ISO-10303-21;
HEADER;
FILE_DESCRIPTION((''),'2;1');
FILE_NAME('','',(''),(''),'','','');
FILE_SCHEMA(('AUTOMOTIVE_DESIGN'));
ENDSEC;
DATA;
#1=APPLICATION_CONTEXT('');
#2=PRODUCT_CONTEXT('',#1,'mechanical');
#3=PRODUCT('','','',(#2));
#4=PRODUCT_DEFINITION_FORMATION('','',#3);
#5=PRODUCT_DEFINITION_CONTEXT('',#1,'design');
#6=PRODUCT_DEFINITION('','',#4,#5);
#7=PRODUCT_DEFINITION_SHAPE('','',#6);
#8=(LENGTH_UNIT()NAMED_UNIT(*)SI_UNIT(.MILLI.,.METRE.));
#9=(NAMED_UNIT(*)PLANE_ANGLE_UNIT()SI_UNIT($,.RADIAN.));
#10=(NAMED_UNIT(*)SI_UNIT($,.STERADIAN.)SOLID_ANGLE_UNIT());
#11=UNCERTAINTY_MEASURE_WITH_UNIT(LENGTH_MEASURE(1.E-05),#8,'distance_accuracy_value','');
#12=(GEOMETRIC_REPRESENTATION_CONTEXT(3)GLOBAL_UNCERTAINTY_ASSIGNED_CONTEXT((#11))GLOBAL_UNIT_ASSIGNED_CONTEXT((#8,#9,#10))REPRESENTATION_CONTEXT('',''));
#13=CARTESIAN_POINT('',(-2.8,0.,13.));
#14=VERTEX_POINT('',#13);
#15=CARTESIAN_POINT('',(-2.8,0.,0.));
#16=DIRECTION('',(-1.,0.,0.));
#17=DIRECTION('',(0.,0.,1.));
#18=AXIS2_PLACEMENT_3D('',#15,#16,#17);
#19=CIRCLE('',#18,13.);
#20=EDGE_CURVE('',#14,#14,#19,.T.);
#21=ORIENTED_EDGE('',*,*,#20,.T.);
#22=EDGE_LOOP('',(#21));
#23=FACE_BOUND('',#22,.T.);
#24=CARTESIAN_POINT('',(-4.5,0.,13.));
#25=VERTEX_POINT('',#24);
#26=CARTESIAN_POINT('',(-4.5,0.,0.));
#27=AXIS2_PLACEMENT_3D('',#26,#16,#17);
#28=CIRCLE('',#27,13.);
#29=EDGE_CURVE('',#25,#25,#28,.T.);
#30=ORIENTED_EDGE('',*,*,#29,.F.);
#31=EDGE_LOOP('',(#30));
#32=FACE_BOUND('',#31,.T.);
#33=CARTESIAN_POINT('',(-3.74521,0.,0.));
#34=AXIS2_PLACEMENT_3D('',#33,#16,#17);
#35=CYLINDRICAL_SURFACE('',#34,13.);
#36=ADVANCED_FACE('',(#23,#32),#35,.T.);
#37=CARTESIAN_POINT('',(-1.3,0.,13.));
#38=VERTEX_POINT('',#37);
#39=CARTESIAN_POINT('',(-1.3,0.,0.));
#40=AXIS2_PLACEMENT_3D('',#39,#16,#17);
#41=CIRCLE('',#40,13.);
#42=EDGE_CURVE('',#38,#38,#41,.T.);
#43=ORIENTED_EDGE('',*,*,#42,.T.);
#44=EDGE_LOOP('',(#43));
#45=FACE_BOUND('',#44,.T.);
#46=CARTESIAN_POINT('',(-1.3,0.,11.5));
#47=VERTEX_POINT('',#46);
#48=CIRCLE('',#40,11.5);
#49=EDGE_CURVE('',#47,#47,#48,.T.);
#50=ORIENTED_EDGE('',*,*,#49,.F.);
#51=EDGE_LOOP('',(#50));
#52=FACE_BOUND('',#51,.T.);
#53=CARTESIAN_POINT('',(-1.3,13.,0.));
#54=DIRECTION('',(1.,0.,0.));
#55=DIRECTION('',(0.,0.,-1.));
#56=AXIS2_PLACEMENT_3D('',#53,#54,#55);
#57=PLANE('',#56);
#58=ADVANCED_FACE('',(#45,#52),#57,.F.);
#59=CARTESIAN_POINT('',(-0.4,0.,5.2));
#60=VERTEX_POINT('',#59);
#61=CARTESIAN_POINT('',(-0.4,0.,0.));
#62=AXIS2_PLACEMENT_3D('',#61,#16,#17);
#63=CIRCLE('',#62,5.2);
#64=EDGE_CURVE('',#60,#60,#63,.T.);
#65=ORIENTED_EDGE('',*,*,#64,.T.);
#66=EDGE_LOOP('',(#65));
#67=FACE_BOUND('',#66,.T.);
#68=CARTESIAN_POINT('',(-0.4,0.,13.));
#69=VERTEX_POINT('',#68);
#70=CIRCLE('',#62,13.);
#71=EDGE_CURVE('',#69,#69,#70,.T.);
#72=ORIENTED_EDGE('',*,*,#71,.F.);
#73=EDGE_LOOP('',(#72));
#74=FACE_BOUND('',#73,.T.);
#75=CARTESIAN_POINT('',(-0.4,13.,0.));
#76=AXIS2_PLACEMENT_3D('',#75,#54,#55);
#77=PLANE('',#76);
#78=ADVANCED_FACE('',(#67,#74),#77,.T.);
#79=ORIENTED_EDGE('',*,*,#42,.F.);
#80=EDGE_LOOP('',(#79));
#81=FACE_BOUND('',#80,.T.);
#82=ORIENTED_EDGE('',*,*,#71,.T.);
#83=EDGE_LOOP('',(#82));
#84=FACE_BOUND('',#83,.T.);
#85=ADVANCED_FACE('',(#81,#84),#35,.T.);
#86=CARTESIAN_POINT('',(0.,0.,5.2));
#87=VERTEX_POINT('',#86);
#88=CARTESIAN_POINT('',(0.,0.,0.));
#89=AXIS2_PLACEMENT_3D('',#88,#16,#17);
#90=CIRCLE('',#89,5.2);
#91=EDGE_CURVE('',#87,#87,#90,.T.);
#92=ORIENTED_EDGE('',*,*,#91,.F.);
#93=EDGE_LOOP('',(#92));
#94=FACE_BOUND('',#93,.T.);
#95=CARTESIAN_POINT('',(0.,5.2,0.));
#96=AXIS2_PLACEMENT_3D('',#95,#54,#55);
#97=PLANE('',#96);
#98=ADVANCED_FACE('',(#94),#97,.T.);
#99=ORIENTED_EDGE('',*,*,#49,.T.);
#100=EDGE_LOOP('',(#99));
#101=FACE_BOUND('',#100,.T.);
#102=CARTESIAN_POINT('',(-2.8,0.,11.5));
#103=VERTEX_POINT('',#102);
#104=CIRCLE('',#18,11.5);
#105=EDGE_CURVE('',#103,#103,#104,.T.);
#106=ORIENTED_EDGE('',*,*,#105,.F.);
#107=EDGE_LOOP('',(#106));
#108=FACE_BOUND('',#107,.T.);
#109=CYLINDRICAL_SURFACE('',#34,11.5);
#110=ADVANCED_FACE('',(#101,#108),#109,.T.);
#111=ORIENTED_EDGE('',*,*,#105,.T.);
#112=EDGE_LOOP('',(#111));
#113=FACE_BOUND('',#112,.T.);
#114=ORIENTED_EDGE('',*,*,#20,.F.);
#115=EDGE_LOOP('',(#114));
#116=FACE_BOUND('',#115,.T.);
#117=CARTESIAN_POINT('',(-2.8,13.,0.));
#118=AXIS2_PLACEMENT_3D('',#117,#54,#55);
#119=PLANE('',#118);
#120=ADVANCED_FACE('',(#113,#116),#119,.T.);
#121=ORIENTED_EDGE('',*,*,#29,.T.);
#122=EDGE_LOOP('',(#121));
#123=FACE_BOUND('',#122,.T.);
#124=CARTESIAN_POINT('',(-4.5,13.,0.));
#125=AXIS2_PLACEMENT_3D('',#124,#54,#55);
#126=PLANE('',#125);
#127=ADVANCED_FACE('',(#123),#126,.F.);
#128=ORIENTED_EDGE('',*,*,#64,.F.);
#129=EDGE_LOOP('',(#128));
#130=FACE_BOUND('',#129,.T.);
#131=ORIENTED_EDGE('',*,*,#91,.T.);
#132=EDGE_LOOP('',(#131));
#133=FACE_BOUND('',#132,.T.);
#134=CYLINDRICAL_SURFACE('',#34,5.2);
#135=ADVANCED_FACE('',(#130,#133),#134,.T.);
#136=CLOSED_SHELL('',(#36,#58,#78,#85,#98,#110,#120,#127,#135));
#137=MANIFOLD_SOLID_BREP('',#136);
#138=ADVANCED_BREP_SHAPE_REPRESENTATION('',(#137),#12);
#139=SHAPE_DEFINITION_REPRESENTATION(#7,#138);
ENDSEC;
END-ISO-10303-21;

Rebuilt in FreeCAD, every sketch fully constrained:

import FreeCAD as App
import Part
import Sketcher

V = App.Vector

doc = App.newDocument("Part")
body = doc.addObject("PartDesign::Body", "Body")

# Sketch on XY plane
sketch1 = doc.addObject("Sketcher::SketchObject", "Sketch")
body.addObject(sketch1)
sketch1.AttachmentSupport = (doc.XY_Plane, [""])
sketch1.MapMode = "FlatFace"
sketch1.addGeometry(Part.LineSegment(V(-0.4, 13, 0), V(-1.3, 13, 0)), False)
sketch1.addGeometry(Part.LineSegment(V(-1.3, 13, 0), V(-1.3, 11.5, 0)), False)
sketch1.addGeometry(Part.LineSegment(V(-1.3, 11.5, 0), V(-2.8, 11.5, 0)), False)
sketch1.addGeometry(Part.LineSegment(V(-2.8, 11.5, 0), V(-2.8, 13, 0)), False)
sketch1.addGeometry(Part.LineSegment(V(-2.8, 13, 0), V(-4.5, 13, 0)), False)
sketch1.addGeometry(Part.LineSegment(V(-4.5, 13, 0), V(-4.5, 0, 0)), False)
sketch1.addGeometry(Part.LineSegment(V(-4.5, 0, 0), V(0, 0, 0)), False)
sketch1.addGeometry(Part.LineSegment(V(0, 0, 0), V(0, 5.2, 0)), False)
sketch1.addGeometry(Part.LineSegment(V(0, 5.2, 0), V(-0.4, 5.2, 0)), False)
sketch1.addGeometry(Part.LineSegment(V(-0.4, 5.2, 0), V(-0.4, 13, 0)), False)
sketch1.addConstraint(Sketcher.Constraint("Coincident", 0, 2, 1, 1))
sketch1.addConstraint(Sketcher.Constraint("Coincident", 1, 2, 2, 1))
sketch1.addConstraint(Sketcher.Constraint("Coincident", 2, 2, 3, 1))
sketch1.addConstraint(Sketcher.Constraint("Coincident", 3, 2, 4, 1))
sketch1.addConstraint(Sketcher.Constraint("Coincident", 4, 2, 5, 1))
sketch1.addConstraint(Sketcher.Constraint("Coincident", 5, 2, 6, 1))
sketch1.addConstraint(Sketcher.Constraint("Coincident", 6, 2, 7, 1))
sketch1.addConstraint(Sketcher.Constraint("Coincident", 7, 2, 8, 1))
sketch1.addConstraint(Sketcher.Constraint("Coincident", 8, 2, 9, 1))
sketch1.addConstraint(Sketcher.Constraint("Coincident", 9, 2, 0, 1))
sketch1.addConstraint(Sketcher.Constraint("Horizontal", 0))
sketch1.addConstraint(Sketcher.Constraint("Vertical", 1))
sketch1.addConstraint(Sketcher.Constraint("Horizontal", 2))
sketch1.addConstraint(Sketcher.Constraint("Vertical", 3))
sketch1.addConstraint(Sketcher.Constraint("Horizontal", 4))
sketch1.addConstraint(Sketcher.Constraint("Vertical", 5))
sketch1.addConstraint(Sketcher.Constraint("Horizontal", 6))
sketch1.addConstraint(Sketcher.Constraint("Vertical", 7))
sketch1.addConstraint(Sketcher.Constraint("Horizontal", 8))
sketch1.addConstraint(Sketcher.Constraint("Vertical", 9))
sketch1.addConstraint(Sketcher.Constraint("Coincident", 6, 2, -1, 1))
sketch1.addConstraint(Sketcher.Constraint("Horizontal", 0, 2, 3, 2))
sketch1.addConstraint(Sketcher.Constraint("Equal", 2, 1))
sketch1.addConstraint(Sketcher.Constraint("DistanceY", 5, 2, 5, 1, 13.0))
sketch1.addConstraint(Sketcher.Constraint("DistanceX", 0, 2, 0, 1, 0.9))
sketch1.addConstraint(Sketcher.Constraint("DistanceX", 2, 2, 2, 1, 1.5))
sketch1.addConstraint(Sketcher.Constraint("DistanceX", 4, 2, 4, 1, 1.7))
sketch1.addConstraint(Sketcher.Constraint("DistanceX", 6, 1, 6, 2, 4.5))
sketch1.addConstraint(Sketcher.Constraint("DistanceY", 7, 1, 7, 2, 5.2))
revolution = doc.addObject("PartDesign::Revolution", "Revolution")
body.addObject(revolution)
revolution.Profile = sketch1
revolution.ReferenceAxis = (sketch1, ["H_Axis"])
revolution.Angle = 360

doc.recompute()
